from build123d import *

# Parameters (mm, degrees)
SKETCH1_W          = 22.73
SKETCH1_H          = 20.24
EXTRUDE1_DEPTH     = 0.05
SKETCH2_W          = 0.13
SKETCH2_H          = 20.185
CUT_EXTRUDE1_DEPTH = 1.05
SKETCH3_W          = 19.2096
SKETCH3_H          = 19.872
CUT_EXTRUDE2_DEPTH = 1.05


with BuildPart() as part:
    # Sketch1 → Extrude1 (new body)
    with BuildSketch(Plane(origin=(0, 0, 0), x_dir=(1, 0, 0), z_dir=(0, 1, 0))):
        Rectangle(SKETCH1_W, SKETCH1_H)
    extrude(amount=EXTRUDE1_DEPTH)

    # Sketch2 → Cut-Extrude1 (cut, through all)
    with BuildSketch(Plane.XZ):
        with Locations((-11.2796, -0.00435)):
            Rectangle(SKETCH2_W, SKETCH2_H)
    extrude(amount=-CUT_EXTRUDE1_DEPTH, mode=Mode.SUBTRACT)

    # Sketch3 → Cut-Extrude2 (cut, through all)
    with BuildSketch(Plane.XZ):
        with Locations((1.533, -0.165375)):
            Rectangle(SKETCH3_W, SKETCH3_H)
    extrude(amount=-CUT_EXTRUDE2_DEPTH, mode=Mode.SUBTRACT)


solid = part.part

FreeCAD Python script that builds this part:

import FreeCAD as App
import Part
import Sketcher


def add_polygon(sketch, points):
    """Adds a closed chain of lines whose ends are joined by coincident constraints."""
    first, n = sketch.GeometryCount, len(points)
    for a, b in zip(points, points[1:] + points[:1]):
        sketch.addGeometry(Part.LineSegment(App.Vector(*a, 0), App.Vector(*b, 0)), False)
    for i in range(n):
        sketch.addConstraint(Sketcher.Constraint("Coincident", first + i, 2, first + (i + 1) % n, 1))

doc = App.newDocument("Part")
body = doc.addObject("PartDesign::Body", "Body")

# Sketch on XZ plane
sketch1 = body.newObject("Sketcher::SketchObject", "Sketch")
sketch1.AttachmentSupport = (doc.getObject("XZ_Plane"), [""])
sketch1.MapMode = "FlatFace"
add_polygon(sketch1, [(-11, -10), (-11, 10), (11, 10), (11, -10)])  # lines 0-3
sketch1.addConstraint([
    Sketcher.Constraint("Vertical", 0),
    Sketcher.Constraint("Horizontal", 1),
    Sketcher.Constraint("Vertical", 2),
    Sketcher.Constraint("Horizontal", 3),
    Sketcher.Constraint("Symmetric", 0, 2, 2, 2, -1, 1),
    Sketcher.Constraint("DistanceX", 1, 1, 1, 2, 22.73),
    Sketcher.Constraint("DistanceY", 0, 1, 0, 2, 20.24),
])
pad1 = body.newObject("PartDesign::Pad", "Pad")
pad1.Profile = sketch1
pad1.Length = 0.05
pad1.Reversed = True

# Sketch on XZ plane
sketch2 = body.newObject("Sketcher::SketchObject", "Sketch001")
sketch2.AttachmentSupport = (doc.getObject("XZ_Plane"), [""])
sketch2.MapMode = "FlatFace"
add_polygon(sketch2, [(-11.34, 10.09), (-11.34, -10.1), (-11.21, -10.1), (-11.21, 10.09)])  # lines 0-3
sketch2.addConstraint([
    Sketcher.Constraint("Vertical", 0),
    Sketcher.Constraint("Horizontal", 1),
    Sketcher.Constraint("Vertical", 2),
    Sketcher.Constraint("Horizontal", 3),
    Sketcher.Constraint("DistanceX", 1, 1, 1, 2, 0.13),
    Sketcher.Constraint("DistanceY", 0, 2, 0, 1, 20.185),
    Sketcher.Constraint("DistanceX", 0, 2, -1, 1, 11.3446),
    Sketcher.Constraint("DistanceY", 0, 2, -1, 1, 10.09685),
])
pocket1 = body.newObject("PartDesign::Pocket", "Pocket")
pocket1.Profile = sketch2
pocket1.Type = "ThroughAll"

# Sketch on XZ plane
sketch3 = body.newObject("Sketcher::SketchObject", "Sketch002")
sketch3.AttachmentSupport = (doc.getObject("XZ_Plane"), [""])
sketch3.MapMode = "FlatFace"
add_polygon(sketch3, [(-8, 10), (-8, -10), (11, -10), (11, 10)])  # lines 0-3
sketch3.addConstraint([
    Sketcher.Constraint("Vertical", 0),
    Sketcher.Constraint("Horizontal", 1),
    Sketcher.Constraint("Vertical", 2),
    Sketcher.Constraint("Horizontal", 3),
    Sketcher.Constraint("DistanceY", 0, 2, 0, 1, 19.872),
    Sketcher.Constraint("DistanceX", 1, 1, 1, 2, 19.2096),
    Sketcher.Constraint("DistanceX", 0, 2, -1, 1, 8.0718),
    Sketcher.Constraint("DistanceY", 0, 2, -1, 1, 10.101375),
])
pocket2 = body.newObject("PartDesign::Pocket", "Pocket001")
pocket2.Profile = sketch3
pocket2.Type = "ThroughAll"

doc.recompute()
